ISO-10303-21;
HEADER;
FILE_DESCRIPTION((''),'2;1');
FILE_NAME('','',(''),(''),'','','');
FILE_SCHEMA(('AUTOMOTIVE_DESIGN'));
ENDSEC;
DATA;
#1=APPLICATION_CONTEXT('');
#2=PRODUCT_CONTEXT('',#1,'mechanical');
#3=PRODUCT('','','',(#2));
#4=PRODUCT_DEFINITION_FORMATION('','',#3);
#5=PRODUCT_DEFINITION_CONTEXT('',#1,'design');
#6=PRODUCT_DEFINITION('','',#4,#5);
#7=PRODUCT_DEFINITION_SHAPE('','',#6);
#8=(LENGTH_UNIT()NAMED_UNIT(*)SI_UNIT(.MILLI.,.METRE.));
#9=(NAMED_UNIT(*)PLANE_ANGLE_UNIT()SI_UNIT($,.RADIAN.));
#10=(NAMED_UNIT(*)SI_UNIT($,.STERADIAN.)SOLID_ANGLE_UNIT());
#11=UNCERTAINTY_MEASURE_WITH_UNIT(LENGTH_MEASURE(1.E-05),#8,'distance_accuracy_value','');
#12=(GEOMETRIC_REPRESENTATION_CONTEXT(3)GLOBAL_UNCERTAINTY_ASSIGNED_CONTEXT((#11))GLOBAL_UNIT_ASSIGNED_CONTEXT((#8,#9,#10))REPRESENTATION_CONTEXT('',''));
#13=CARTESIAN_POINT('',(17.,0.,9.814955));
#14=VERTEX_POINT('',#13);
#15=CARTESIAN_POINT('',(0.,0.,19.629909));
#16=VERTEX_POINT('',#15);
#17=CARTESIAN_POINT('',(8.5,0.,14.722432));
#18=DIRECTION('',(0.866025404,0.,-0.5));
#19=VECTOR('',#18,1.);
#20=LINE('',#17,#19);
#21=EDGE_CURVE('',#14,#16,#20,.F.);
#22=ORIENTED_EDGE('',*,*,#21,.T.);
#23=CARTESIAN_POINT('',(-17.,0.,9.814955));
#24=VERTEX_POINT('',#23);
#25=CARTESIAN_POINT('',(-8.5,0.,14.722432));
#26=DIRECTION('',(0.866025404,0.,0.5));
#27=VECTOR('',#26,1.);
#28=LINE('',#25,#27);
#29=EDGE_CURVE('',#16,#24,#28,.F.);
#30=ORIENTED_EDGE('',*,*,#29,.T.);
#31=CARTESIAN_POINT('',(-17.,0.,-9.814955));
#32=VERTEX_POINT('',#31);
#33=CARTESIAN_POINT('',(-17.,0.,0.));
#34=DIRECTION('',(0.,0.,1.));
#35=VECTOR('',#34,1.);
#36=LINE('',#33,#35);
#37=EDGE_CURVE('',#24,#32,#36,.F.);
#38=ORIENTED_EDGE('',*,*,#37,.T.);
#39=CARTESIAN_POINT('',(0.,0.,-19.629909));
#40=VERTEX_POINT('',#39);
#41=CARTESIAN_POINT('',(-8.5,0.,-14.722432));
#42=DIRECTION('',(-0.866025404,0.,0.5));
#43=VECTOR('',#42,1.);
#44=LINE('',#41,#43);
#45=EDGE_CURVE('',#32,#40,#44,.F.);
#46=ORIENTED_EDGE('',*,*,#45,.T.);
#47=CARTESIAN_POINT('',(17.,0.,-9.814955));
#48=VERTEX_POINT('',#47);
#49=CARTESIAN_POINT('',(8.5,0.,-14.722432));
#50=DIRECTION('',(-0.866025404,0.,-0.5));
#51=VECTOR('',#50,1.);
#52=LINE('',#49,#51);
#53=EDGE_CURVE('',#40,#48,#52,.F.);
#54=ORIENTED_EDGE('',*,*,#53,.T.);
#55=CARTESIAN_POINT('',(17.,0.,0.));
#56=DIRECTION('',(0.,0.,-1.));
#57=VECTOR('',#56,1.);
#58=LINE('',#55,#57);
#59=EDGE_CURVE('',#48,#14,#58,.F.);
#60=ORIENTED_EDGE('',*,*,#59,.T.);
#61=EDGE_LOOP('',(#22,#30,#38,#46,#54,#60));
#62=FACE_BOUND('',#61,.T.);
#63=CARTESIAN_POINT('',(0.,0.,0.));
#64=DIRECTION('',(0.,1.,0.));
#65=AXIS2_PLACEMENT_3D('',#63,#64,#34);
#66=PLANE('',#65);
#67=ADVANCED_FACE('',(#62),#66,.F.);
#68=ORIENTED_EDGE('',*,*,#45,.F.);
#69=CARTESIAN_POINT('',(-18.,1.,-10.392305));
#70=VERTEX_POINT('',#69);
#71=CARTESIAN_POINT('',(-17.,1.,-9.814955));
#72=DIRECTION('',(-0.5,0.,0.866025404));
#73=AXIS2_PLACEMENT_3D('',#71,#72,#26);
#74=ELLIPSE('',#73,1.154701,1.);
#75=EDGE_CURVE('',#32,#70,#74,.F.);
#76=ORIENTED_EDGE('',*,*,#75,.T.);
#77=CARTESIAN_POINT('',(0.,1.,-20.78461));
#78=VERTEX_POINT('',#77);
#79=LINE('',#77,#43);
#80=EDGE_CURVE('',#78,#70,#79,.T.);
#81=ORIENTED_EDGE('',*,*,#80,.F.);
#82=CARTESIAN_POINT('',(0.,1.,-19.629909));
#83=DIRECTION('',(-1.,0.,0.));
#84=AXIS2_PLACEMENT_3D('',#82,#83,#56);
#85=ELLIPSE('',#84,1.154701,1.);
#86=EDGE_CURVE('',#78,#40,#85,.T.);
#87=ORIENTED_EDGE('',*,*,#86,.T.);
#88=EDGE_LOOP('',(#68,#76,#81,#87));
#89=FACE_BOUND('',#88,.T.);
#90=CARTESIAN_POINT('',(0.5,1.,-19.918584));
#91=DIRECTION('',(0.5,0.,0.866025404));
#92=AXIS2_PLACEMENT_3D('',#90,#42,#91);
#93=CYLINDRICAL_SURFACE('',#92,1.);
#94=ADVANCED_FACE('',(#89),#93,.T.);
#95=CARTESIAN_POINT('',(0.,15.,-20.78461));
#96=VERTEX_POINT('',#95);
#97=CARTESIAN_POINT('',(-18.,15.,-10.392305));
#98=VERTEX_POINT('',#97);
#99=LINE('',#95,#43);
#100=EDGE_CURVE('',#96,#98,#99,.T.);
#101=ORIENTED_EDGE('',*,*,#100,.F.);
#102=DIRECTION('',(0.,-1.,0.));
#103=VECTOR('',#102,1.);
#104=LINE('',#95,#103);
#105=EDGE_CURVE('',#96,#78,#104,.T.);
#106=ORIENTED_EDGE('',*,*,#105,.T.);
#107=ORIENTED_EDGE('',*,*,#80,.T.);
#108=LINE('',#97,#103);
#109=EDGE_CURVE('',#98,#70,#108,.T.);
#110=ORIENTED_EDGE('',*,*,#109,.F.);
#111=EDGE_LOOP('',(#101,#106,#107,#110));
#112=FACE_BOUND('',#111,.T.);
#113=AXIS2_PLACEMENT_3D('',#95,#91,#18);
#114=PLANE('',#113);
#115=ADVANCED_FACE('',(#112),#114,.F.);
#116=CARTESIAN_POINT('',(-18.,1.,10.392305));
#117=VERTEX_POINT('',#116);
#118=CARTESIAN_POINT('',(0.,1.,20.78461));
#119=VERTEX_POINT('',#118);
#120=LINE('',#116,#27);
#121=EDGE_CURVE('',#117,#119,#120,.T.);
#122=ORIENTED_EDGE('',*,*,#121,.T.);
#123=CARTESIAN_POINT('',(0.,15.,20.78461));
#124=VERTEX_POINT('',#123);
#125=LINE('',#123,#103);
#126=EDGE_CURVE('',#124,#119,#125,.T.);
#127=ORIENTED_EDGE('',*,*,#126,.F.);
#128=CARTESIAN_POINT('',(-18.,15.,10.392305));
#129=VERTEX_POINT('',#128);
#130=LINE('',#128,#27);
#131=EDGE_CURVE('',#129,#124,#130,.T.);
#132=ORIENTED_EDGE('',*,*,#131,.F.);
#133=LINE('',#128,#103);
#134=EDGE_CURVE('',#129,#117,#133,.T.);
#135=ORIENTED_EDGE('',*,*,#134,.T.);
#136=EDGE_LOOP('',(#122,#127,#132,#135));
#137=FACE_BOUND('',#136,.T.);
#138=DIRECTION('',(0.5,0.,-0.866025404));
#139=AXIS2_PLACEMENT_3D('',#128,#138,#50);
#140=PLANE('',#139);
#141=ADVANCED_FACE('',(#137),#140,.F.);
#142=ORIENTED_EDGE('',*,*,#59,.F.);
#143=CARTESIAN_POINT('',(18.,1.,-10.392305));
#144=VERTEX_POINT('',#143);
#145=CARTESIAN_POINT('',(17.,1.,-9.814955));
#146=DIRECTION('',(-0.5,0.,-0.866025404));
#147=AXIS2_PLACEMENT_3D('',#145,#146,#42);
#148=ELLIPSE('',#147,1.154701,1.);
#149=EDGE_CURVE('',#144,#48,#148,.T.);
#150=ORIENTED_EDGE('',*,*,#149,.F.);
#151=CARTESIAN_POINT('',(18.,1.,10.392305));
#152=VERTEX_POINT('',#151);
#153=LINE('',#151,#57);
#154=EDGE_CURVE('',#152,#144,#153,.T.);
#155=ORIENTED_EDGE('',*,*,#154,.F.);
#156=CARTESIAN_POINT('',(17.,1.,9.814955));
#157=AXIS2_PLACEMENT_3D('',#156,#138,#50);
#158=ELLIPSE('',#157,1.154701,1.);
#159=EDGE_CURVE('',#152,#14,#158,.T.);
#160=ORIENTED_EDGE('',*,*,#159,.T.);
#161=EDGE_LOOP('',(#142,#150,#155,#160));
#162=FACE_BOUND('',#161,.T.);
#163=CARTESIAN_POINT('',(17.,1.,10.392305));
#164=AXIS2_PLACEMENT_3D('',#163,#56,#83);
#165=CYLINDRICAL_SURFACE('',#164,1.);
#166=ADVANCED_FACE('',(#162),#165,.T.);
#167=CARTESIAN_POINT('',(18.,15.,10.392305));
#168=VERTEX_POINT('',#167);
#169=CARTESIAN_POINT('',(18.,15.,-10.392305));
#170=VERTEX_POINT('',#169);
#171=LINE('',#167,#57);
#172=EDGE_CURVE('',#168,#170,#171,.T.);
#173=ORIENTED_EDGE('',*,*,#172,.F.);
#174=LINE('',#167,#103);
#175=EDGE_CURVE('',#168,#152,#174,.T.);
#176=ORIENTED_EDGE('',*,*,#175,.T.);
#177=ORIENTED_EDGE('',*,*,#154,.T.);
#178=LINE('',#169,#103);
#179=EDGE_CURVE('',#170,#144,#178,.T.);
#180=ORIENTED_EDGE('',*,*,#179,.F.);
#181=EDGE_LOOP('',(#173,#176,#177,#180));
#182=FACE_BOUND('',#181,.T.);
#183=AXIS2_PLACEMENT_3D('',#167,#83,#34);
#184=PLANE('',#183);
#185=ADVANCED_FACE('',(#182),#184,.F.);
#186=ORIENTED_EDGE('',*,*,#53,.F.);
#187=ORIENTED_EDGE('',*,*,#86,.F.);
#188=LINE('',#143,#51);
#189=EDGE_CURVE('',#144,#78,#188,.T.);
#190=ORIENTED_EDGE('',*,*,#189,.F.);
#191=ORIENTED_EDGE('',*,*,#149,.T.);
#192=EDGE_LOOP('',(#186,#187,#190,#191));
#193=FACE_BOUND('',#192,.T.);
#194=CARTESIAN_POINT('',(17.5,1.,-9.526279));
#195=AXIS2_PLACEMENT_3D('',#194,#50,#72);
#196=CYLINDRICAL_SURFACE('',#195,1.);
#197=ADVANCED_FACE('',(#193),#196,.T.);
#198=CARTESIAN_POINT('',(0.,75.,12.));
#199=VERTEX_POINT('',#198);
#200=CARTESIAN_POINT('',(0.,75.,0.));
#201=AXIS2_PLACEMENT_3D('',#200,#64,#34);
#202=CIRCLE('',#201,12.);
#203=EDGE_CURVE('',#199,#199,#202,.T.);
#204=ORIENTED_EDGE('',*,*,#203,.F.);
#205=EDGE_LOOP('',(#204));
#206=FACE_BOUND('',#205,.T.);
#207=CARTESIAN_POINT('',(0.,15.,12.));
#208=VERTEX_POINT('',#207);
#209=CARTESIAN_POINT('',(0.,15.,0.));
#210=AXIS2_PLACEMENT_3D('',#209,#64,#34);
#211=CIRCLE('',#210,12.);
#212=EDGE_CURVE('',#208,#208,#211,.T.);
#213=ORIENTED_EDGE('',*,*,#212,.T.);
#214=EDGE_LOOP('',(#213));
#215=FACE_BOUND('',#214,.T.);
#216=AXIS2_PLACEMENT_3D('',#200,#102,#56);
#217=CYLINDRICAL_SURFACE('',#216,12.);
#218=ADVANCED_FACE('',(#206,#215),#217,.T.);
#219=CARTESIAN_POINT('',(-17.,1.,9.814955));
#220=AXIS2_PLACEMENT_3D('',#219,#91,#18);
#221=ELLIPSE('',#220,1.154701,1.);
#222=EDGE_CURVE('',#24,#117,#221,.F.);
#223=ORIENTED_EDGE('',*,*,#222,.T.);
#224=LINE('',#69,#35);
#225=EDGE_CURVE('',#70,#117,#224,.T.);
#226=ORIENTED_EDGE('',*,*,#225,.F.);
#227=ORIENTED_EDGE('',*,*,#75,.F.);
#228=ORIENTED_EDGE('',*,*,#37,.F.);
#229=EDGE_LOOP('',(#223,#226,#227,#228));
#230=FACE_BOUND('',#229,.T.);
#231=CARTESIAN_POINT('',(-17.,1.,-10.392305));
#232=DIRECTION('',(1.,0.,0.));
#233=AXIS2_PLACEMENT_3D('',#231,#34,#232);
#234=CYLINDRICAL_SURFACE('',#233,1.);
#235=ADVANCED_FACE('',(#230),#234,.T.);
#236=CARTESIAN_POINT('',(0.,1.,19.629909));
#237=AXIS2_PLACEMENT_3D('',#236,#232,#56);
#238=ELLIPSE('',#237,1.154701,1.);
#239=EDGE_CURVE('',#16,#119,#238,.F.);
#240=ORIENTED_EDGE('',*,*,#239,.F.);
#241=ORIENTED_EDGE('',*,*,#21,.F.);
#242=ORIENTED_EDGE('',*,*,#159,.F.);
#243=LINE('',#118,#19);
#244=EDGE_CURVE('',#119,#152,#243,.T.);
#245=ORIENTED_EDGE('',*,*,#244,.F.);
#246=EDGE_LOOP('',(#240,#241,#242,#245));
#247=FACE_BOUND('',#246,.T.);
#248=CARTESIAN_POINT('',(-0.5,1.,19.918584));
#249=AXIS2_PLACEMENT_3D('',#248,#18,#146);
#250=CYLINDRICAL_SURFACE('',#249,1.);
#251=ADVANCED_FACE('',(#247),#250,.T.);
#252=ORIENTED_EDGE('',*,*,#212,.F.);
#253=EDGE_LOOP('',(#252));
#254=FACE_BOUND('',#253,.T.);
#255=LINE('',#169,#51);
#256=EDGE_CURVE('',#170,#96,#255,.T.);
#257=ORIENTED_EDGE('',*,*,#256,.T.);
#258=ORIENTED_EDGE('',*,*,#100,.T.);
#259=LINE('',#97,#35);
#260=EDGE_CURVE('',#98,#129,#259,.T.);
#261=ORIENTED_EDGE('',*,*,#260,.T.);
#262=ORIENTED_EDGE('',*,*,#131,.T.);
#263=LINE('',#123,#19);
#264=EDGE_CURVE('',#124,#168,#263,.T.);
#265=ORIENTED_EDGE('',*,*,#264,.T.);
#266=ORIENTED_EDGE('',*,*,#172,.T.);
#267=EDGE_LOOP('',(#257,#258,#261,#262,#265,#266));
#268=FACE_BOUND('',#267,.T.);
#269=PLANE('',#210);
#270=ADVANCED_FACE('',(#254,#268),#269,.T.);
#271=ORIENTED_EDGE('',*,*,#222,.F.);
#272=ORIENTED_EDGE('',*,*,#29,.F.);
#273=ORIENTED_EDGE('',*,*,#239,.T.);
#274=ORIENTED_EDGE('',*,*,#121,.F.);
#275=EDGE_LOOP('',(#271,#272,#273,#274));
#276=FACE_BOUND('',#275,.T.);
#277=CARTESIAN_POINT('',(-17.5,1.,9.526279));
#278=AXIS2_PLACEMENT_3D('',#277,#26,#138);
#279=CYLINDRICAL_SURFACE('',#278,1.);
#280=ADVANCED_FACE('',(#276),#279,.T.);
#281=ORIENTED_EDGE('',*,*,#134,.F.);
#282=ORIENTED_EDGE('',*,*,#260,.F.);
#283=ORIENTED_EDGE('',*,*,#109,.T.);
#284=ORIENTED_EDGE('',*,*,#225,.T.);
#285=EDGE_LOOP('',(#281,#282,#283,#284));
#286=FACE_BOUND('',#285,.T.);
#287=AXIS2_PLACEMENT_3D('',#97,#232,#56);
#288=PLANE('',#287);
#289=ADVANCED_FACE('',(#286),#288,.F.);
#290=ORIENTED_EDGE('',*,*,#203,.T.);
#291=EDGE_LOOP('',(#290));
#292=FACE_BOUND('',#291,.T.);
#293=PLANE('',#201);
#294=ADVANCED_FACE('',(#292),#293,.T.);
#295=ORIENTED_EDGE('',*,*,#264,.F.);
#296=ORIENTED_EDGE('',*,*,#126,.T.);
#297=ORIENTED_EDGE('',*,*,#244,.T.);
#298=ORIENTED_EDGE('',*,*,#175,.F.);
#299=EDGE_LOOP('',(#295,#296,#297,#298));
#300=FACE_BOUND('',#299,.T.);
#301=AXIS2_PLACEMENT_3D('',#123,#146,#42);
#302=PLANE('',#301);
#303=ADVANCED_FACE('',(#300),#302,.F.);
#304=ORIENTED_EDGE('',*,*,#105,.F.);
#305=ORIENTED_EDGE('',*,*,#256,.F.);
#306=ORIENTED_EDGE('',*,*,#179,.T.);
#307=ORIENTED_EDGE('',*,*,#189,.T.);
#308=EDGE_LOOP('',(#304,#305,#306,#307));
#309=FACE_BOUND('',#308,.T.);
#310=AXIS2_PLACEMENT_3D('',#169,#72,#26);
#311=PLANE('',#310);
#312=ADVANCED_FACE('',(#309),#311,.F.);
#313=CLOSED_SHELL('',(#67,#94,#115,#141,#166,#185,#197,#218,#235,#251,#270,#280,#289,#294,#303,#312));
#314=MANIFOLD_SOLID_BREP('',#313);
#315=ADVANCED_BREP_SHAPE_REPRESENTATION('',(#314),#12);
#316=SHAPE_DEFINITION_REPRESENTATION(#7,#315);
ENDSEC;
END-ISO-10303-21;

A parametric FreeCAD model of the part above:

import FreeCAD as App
import Part
import Sketcher
Q = App.Units.Quantity


def edges_at(feature, points):
    """Names of the edges that pass closest to the given points."""
    edges = feature.Shape.Edges
    near = lambda p: min(range(len(edges)), key=lambda i: edges[i].distToShape(Part.Vertex(*p))[0])
    return sorted({f"Edge{near(p) + 1}" for p in points})

doc = App.newDocument("Part")
params = doc.addObject("Spreadsheet::Sheet", "Params")
for row, (alias, value) in enumerate([
    ("pad1_length", "15 mm"),
    ("sketch2_diameter", "24 mm"),
    ("pad2_length", "60 mm"),
    ("fillet_radius", "1 mm"),
], start=1):
    params.set(f"A{row}", alias)
    params.set(f"B{row}", "=" + value)
    params.setAlias(f"B{row}", alias)

body = doc.addObject("PartDesign::Body", "Body")

sketch1 = body.newObject("Sketcher::SketchObject", "Sketch")
sketch1.AttachmentSupport = (doc.getObject("XZ_Plane"), [""])
sketch1.MapMode = "FlatFace"
sketch1.addGeometry([
    Part.LineSegment(App.Vector(18, 10, 0), App.Vector(18, -10, 0)),
    Part.LineSegment(App.Vector(18, -10, 0), App.Vector(0, -21, 0)),
    Part.LineSegment(App.Vector(0, -21, 0), App.Vector(-18, -10, 0)),
    Part.LineSegment(App.Vector(-18, -10, 0), App.Vector(-18, 10, 0)),
    Part.LineSegment(App.Vector(-18, 10, 0), App.Vector(0, 21, 0)),
    Part.LineSegment(App.Vector(0, 21, 0), App.Vector(18, 10, 0)),
], False)
sketch1.addConstraint([
    Sketcher.Constraint("Coincident", 0, 2, 1, 1),
    Sketcher.Constraint("Coincident", 1, 2, 2, 1),
    Sketcher.Constraint("Coincident", 2, 2, 3, 1),
    Sketcher.Constraint("Coincident", 3, 2, 4, 1),
    Sketcher.Constraint("Coincident", 4, 2, 5, 1),
    Sketcher.Constraint("Coincident", 5, 2, 0, 1),
    Sketcher.Constraint("Vertical", 0),
    Sketcher.Constraint("Vertical", 3),
    Sketcher.Constraint("Symmetric", 0, 2, 3, 2, -1, 1),
    Sketcher.Constraint("Symmetric", 1, 2, 4, 2, -1, 1),
    Sketcher.Constraint("PointOnObject", 1, 2, -2),
    Sketcher.Constraint("Parallel", 2, 5),
    Sketcher.Constraint("Horizontal", 0, 2, 2, 2),
    Sketcher.Constraint("Angle", 1, Q("-150 deg")),
    Sketcher.Constraint("DistanceX", -1, 1, 0, 2, 18.0),
    Sketcher.Constraint("DistanceY", 0, 2, 0, 1, 20.78461),
])
pad1 = body.newObject("PartDesign::Pad", "Pad")
pad1.Profile = sketch1
pad1.setExpression("Length", "Params.pad1_length")
pad1.Reversed = True

sketch2 = body.newObject("Sketcher::SketchObject", "Sketch001")
sketch2.AttachmentSupport = (doc.getObject("XZ_Plane"), [""])
sketch2.MapMode = "FlatFace"
sketch2.AttachmentOffset = App.Placement(App.Vector(0, 0, -15), App.Rotation())
sketch2.addGeometry(Part.Circle(App.Vector(0, 0, 0), App.Vector(0, 0, 1), 12), False)
sketch2.addConstraint([
    Sketcher.Constraint("Coincident", 0, 3, -1, 1),
    Sketcher.Constraint("Diameter", 0, 24.0),
])
sketch2.setExpression("Constraints[1]", "Params.sketch2_diameter")
pad2 = body.newObject("PartDesign::Pad", "Pad001")
pad2.Profile = sketch2
pad2.setExpression("Length", "Params.pad2_length")
pad2.Reversed = True
doc.recompute()

fillet = body.newObject("PartDesign::Fillet", "Fillet")
fillet.Base = (pad2, edges_at(pad2, [
    (18, 0, 0),
    (9, 0, 15.588),
    (-9, 0, 15.588),
    (-18, 0, 0),
    (-9, 0, -15.588),
    (9, 0, -15.588),
]))
fillet.setExpression("Radius", "Params.fillet_radius")

doc.recompute()
